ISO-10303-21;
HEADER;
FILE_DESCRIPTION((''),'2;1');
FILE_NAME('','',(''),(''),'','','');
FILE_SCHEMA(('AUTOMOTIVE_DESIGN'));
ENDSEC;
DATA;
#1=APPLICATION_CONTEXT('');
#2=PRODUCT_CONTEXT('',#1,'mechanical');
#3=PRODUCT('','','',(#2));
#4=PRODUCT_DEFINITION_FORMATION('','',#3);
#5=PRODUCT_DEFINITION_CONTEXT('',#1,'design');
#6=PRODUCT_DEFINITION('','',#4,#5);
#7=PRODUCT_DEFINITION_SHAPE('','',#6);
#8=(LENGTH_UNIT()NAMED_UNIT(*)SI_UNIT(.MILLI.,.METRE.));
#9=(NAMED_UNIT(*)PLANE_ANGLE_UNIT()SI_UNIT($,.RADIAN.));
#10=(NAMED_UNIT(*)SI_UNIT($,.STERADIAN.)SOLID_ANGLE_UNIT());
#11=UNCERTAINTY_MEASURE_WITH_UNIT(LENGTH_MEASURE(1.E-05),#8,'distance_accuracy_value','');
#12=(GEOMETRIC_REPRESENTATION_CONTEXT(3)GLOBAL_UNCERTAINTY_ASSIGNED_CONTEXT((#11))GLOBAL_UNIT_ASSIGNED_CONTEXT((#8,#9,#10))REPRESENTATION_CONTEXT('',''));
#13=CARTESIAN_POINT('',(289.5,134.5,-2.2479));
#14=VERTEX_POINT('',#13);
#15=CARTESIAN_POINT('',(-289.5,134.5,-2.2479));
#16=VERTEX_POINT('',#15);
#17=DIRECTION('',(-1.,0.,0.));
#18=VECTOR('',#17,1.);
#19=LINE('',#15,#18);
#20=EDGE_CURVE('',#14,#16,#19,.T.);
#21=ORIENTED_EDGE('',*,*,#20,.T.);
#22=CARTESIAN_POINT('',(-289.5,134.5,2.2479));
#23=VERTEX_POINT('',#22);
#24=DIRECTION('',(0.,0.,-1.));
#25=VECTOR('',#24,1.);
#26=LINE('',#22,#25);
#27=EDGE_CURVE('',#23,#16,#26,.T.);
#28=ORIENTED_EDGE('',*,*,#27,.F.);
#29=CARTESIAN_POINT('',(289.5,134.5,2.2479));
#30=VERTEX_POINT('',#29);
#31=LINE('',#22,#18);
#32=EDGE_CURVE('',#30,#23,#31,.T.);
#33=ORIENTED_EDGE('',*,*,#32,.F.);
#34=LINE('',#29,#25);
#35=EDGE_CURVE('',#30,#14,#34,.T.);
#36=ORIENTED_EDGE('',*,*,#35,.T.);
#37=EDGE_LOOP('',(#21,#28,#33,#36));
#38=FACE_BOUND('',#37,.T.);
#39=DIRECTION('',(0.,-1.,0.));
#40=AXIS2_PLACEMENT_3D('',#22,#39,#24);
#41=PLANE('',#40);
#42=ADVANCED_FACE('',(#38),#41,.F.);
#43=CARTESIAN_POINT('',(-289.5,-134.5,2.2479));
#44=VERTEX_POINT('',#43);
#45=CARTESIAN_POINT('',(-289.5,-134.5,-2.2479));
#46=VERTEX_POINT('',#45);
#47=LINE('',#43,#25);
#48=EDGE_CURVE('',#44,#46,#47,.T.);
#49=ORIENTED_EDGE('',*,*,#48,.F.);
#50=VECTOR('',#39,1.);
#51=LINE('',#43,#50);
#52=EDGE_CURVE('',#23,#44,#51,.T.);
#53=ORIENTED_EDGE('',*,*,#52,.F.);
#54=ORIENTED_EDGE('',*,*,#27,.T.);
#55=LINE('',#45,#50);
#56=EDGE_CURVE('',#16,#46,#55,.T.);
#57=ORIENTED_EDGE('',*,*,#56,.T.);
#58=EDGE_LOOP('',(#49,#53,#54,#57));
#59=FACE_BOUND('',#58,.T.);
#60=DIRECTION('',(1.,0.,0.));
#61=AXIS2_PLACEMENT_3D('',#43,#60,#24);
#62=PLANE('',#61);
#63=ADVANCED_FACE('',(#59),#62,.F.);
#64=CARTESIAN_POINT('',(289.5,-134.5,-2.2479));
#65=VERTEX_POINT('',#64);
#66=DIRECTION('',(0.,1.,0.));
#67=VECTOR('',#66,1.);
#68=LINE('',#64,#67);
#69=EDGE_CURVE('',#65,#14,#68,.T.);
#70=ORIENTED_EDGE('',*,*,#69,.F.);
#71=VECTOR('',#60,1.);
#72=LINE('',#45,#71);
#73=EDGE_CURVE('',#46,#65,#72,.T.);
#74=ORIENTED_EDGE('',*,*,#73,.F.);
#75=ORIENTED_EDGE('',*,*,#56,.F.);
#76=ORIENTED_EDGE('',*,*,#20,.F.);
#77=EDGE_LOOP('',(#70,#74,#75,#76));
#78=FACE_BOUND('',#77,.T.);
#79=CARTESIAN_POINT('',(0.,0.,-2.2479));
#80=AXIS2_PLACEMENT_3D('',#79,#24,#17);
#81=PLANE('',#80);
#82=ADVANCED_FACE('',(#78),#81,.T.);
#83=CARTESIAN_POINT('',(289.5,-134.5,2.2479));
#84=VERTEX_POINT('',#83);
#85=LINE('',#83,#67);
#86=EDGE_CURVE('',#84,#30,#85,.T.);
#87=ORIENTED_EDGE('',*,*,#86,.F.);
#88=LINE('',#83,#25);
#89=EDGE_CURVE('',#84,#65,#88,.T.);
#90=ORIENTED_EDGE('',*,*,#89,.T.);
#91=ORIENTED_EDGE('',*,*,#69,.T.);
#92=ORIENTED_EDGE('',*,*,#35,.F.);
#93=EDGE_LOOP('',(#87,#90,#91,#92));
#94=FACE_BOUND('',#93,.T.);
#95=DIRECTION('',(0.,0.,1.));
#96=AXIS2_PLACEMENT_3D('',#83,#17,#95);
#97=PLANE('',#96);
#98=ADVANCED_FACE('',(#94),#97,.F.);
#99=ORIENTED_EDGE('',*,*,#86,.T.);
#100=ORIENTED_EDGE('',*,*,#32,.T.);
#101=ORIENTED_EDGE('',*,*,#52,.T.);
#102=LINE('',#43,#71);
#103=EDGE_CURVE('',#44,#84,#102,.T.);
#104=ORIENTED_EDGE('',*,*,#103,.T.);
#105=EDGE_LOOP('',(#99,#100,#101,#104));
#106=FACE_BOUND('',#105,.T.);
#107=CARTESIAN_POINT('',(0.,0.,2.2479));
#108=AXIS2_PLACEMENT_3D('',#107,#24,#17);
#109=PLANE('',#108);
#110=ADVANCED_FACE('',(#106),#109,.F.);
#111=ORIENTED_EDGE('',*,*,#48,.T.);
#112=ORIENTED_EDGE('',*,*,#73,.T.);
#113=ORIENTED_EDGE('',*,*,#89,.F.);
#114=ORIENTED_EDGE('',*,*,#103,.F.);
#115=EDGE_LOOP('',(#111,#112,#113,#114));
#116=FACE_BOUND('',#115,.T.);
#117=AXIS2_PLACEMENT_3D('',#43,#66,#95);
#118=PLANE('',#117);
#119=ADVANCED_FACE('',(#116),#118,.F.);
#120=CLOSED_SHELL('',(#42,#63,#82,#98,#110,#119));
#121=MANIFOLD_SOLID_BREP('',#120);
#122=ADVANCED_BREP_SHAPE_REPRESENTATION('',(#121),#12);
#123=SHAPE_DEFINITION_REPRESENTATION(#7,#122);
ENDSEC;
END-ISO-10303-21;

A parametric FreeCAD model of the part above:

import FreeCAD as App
import Part
import Sketcher

V = App.Vector
Q = App.Units.Quantity

doc = App.newDocument("Part")
body = doc.addObject("PartDesign::Body", "Body")

# Sketch on XY plane
sketch1 = body.newObject("Sketcher::SketchObject", "Sketch")
sketch1.AttachmentSupport = (doc.getObject("XY_Plane"), [""])
sketch1.MapMode = "FlatFace"
sketch1.addGeometry([
    Part.LineSegment(V(-290, 134, 0), V(-290, -134, 0)),
    Part.LineSegment(V(-290, -134, 0), V(290, -134, 0)),
    Part.LineSegment(V(290, -134, 0), V(290, 134, 0)),
    Part.LineSegment(V(290, 134, 0), V(-290, 134, 0)),
], False)
sketch1.addConstraint([
    Sketcher.Constraint("Coincident", 0, 2, 1, 1),
    Sketcher.Constraint("Coincident", 1, 2, 2, 1),
    Sketcher.Constraint("Coincident", 2, 2, 3, 1),
    Sketcher.Constraint("Coincident", 3, 2, 0, 1),
    Sketcher.Constraint("Vertical", 0),
    Sketcher.Constraint("Horizontal", 1),
    Sketcher.Constraint("Vertical", 2),
    Sketcher.Constraint("Horizontal", 3),
    Sketcher.Constraint("Symmetric", 0, 2, 2, 2, -1, 1),
    Sketcher.Constraint("DistanceX", 1, 1, 1, 2, Q("579 mm")),
    Sketcher.Constraint("DistanceY", 0, 2, 0, 1, Q("269 mm")),
])
pad1 = body.newObject("PartDesign::Pad", "Pad")
pad1.Profile = sketch1
pad1.Length = 4.4958
pad1.Midplane = True

doc.recompute()
